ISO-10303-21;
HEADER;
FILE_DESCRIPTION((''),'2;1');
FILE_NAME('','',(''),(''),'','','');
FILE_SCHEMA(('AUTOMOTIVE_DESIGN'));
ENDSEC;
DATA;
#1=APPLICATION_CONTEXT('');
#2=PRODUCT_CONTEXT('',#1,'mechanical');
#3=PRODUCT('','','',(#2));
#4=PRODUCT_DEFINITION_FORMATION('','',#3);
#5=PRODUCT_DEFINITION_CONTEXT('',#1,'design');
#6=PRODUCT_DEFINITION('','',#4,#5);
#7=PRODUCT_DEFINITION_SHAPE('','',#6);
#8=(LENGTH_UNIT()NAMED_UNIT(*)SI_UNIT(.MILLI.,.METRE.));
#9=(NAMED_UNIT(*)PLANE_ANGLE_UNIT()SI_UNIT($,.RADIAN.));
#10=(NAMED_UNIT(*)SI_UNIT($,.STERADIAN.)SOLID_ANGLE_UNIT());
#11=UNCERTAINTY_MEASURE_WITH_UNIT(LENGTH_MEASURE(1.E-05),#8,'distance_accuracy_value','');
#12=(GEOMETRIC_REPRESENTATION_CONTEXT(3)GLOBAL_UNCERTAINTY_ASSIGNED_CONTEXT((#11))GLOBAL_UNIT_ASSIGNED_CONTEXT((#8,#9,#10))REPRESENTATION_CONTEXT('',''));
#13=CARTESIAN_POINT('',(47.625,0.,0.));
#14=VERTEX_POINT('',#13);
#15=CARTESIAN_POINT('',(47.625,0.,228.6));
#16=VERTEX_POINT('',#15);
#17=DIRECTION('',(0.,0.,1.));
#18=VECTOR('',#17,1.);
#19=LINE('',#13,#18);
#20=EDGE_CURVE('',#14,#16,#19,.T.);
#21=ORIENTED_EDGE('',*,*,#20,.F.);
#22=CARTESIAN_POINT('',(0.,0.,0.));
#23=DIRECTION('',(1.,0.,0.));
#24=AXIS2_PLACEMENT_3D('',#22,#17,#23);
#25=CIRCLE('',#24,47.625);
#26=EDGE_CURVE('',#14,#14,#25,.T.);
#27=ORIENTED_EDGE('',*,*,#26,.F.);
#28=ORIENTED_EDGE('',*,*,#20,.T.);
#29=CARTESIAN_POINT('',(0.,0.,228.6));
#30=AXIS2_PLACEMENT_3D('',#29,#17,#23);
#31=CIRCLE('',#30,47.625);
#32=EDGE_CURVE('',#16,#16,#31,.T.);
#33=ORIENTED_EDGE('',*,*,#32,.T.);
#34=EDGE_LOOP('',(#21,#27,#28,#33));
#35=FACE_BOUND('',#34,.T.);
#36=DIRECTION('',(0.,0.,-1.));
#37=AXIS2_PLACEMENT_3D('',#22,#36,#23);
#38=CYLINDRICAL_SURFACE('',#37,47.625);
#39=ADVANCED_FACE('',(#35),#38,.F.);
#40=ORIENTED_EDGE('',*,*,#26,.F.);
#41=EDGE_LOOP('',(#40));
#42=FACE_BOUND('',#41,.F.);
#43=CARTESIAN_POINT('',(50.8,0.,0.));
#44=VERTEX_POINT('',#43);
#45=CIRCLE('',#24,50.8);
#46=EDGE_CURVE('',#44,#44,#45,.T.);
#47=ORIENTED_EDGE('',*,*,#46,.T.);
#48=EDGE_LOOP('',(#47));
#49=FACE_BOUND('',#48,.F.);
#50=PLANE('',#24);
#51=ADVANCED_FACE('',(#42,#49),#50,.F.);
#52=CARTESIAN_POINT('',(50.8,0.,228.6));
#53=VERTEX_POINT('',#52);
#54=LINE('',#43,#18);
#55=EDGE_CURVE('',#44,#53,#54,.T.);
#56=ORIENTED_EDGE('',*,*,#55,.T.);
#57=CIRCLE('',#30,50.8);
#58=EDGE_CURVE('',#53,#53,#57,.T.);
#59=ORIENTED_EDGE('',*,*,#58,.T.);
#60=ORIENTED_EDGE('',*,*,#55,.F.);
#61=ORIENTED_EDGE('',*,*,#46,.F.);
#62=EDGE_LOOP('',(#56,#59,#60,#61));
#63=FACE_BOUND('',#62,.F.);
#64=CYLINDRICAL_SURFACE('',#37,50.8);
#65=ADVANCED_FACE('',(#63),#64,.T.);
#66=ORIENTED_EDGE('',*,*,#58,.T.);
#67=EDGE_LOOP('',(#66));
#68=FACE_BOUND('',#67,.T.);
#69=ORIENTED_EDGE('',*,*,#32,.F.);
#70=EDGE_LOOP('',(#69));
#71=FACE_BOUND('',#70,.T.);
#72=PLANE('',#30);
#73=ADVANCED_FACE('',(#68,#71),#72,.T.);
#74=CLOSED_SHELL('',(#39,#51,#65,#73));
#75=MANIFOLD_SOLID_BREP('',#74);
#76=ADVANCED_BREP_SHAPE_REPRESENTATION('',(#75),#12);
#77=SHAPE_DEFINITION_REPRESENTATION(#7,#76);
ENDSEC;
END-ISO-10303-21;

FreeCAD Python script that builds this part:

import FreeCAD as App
import Part
import Sketcher
Q = App.Units.Quantity

doc = App.newDocument("Part")
body = doc.addObject("PartDesign::Body", "Body")

sketch1 = doc.addObject("Sketcher::SketchObject", "Sketch")
body.addObject(sketch1)
sketch1.AttachmentSupport = (doc.XY_Plane, [""])
sketch1.MapMode = "FlatFace"
sketch1.addGeometry(Part.Circle(App.Vector(0, 0, 0), App.Vector(0, 0, 1), 50.8), False)
sketch1.addGeometry(Part.Circle(App.Vector(0, 0, 0), App.Vector(0, 0, 1), 47.625), False)
sketch1.addConstraint(Sketcher.Constraint("Coincident", 0, 3, -1, 1))
sketch1.addConstraint(Sketcher.Constraint("Coincident", 1, 3, -1, 1))
sketch1.addConstraint(Sketcher.Constraint("Diameter", 0, Q("4 in")))
sketch1.addConstraint(Sketcher.Constraint("Diameter", 1, Q("3.75 in")))
pad1 = doc.addObject("PartDesign::Pad", "Pad")
body.addObject(pad1)
pad1.Profile = sketch1
pad1.Length = Q("9 in")

doc.recompute()
